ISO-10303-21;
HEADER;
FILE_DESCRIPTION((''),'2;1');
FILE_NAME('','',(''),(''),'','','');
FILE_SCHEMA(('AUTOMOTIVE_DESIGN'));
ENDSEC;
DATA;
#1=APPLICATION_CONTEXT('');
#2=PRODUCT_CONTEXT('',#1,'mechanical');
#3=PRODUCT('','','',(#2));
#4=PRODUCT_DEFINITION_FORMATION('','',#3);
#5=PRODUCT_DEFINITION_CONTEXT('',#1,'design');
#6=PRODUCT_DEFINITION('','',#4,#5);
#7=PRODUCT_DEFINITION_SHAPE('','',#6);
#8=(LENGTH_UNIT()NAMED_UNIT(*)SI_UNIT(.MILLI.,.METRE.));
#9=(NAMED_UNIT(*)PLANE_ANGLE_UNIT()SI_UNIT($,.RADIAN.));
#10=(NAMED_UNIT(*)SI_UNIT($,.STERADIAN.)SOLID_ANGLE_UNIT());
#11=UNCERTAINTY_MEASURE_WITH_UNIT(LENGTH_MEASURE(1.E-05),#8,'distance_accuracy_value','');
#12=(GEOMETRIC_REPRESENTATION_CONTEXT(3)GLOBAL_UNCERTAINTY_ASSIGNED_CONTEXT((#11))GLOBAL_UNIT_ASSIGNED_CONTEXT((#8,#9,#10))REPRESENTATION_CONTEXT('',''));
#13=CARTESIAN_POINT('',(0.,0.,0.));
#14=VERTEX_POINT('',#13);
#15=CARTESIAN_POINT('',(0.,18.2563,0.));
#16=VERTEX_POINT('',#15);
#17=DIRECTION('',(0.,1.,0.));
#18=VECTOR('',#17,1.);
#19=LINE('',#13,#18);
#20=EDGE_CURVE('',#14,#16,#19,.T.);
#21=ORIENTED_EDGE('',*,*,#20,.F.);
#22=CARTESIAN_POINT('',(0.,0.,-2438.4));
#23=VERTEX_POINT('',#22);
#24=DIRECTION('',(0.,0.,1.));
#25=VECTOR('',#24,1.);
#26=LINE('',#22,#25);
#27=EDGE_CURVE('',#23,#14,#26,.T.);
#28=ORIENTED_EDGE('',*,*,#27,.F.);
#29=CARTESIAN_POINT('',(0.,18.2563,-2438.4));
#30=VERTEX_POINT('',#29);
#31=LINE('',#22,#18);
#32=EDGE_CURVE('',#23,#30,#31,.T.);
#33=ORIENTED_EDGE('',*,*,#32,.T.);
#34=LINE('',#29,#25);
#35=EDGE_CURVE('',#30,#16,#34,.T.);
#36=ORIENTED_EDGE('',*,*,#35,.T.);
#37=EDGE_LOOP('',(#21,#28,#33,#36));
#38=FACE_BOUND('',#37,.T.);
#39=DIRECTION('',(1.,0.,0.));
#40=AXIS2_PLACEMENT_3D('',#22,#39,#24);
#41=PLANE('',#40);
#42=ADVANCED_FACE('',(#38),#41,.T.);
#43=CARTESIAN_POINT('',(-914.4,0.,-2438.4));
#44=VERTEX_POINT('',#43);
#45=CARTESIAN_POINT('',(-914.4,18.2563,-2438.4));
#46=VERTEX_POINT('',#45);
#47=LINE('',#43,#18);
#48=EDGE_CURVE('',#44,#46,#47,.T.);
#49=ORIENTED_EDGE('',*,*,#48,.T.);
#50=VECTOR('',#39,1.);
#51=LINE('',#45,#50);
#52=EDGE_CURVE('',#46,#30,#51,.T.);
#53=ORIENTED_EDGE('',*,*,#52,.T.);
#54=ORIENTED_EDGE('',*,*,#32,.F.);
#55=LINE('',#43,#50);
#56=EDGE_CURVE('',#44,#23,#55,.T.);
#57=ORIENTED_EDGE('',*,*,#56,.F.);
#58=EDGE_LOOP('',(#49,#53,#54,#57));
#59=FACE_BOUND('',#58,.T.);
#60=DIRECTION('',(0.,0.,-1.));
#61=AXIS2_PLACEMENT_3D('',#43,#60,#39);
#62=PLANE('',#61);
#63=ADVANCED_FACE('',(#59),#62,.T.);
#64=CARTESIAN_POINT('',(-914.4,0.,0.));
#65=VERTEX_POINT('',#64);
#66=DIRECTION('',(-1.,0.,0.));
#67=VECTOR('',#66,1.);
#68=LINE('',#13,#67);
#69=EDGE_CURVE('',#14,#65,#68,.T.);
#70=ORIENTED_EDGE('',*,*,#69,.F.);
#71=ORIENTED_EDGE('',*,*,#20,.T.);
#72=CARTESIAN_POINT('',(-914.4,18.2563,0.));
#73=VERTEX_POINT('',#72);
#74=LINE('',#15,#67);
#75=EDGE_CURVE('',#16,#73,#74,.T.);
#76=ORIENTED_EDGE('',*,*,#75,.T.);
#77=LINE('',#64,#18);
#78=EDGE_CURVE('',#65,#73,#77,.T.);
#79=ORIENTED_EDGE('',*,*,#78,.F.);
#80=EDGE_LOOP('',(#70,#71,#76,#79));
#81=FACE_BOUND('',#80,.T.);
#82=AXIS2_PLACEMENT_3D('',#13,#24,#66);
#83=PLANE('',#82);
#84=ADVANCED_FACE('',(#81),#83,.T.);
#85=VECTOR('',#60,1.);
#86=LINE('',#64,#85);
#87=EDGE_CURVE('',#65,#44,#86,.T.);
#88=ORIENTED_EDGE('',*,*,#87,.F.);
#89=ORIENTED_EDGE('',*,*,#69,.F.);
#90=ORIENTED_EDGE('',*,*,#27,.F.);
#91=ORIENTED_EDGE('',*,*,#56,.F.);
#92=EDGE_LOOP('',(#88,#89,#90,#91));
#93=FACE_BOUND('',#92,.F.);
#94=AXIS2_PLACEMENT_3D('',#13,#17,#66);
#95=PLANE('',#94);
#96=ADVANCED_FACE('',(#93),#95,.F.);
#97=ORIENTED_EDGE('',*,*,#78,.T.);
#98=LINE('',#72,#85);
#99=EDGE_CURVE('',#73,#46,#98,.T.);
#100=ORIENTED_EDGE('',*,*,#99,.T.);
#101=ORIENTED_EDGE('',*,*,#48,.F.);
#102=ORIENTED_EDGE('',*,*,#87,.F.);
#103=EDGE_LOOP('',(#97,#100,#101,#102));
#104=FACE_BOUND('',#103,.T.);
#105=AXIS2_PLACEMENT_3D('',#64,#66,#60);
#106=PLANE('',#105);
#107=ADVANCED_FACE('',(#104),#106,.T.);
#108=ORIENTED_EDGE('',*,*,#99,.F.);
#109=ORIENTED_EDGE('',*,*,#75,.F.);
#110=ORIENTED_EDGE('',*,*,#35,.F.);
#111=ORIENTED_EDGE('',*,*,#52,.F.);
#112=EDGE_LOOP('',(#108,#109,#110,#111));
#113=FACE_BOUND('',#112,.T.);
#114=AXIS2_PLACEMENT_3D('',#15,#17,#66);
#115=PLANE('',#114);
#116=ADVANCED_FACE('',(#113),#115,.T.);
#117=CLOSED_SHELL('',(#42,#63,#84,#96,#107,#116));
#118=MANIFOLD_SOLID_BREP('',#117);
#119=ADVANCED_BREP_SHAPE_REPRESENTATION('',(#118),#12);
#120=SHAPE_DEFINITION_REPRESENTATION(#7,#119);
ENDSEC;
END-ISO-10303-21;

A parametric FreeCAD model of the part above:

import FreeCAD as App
import Part
import Sketcher
Q = App.Units.Quantity


def add_polygon(sketch, points):
    """Adds a closed chain of lines whose ends are joined by coincident constraints."""
    first, n = sketch.GeometryCount, len(points)
    for a, b in zip(points, points[1:] + points[:1]):
        sketch.addGeometry(Part.LineSegment(App.Vector(*a, 0), App.Vector(*b, 0)), False)
    for i in range(n):
        sketch.addConstraint(Sketcher.Constraint("Coincident", first + i, 2, first + (i + 1) % n, 1))

doc = App.newDocument("Part")
body = doc.addObject("PartDesign::Body", "Body")

# Sketch on XZ plane
sketch1 = body.newObject("Sketcher::SketchObject", "Sketch")
sketch1.AttachmentSupport = (doc.getObject("XZ_Plane"), [""])
sketch1.MapMode = "FlatFace"
add_polygon(sketch1, [(-914, 0), (0, 0), (0, -2438), (-914, -2438)])  # lines 0-3
sketch1.addConstraint(Sketcher.Constraint("Horizontal", 0))
sketch1.addConstraint(Sketcher.Constraint("Vertical", 1))
sketch1.addConstraint(Sketcher.Constraint("Horizontal", 2))
sketch1.addConstraint(Sketcher.Constraint("Vertical", 3))
sketch1.addConstraint(Sketcher.Constraint("Coincident", 0, 2, -1, 1))
sketch1.addConstraint(Sketcher.Constraint("DistanceX", 0, 1, 0, 2, Q("36 in")))
sketch1.addConstraint(Sketcher.Constraint("DistanceY", 1, 2, 1, 1, Q("96 in")))
pad1 = body.newObject("PartDesign::Pad", "Pad")
pad1.Profile = sketch1
pad1.Length = Q("0.718752 in")
pad1.Reversed = True

doc.recompute()
